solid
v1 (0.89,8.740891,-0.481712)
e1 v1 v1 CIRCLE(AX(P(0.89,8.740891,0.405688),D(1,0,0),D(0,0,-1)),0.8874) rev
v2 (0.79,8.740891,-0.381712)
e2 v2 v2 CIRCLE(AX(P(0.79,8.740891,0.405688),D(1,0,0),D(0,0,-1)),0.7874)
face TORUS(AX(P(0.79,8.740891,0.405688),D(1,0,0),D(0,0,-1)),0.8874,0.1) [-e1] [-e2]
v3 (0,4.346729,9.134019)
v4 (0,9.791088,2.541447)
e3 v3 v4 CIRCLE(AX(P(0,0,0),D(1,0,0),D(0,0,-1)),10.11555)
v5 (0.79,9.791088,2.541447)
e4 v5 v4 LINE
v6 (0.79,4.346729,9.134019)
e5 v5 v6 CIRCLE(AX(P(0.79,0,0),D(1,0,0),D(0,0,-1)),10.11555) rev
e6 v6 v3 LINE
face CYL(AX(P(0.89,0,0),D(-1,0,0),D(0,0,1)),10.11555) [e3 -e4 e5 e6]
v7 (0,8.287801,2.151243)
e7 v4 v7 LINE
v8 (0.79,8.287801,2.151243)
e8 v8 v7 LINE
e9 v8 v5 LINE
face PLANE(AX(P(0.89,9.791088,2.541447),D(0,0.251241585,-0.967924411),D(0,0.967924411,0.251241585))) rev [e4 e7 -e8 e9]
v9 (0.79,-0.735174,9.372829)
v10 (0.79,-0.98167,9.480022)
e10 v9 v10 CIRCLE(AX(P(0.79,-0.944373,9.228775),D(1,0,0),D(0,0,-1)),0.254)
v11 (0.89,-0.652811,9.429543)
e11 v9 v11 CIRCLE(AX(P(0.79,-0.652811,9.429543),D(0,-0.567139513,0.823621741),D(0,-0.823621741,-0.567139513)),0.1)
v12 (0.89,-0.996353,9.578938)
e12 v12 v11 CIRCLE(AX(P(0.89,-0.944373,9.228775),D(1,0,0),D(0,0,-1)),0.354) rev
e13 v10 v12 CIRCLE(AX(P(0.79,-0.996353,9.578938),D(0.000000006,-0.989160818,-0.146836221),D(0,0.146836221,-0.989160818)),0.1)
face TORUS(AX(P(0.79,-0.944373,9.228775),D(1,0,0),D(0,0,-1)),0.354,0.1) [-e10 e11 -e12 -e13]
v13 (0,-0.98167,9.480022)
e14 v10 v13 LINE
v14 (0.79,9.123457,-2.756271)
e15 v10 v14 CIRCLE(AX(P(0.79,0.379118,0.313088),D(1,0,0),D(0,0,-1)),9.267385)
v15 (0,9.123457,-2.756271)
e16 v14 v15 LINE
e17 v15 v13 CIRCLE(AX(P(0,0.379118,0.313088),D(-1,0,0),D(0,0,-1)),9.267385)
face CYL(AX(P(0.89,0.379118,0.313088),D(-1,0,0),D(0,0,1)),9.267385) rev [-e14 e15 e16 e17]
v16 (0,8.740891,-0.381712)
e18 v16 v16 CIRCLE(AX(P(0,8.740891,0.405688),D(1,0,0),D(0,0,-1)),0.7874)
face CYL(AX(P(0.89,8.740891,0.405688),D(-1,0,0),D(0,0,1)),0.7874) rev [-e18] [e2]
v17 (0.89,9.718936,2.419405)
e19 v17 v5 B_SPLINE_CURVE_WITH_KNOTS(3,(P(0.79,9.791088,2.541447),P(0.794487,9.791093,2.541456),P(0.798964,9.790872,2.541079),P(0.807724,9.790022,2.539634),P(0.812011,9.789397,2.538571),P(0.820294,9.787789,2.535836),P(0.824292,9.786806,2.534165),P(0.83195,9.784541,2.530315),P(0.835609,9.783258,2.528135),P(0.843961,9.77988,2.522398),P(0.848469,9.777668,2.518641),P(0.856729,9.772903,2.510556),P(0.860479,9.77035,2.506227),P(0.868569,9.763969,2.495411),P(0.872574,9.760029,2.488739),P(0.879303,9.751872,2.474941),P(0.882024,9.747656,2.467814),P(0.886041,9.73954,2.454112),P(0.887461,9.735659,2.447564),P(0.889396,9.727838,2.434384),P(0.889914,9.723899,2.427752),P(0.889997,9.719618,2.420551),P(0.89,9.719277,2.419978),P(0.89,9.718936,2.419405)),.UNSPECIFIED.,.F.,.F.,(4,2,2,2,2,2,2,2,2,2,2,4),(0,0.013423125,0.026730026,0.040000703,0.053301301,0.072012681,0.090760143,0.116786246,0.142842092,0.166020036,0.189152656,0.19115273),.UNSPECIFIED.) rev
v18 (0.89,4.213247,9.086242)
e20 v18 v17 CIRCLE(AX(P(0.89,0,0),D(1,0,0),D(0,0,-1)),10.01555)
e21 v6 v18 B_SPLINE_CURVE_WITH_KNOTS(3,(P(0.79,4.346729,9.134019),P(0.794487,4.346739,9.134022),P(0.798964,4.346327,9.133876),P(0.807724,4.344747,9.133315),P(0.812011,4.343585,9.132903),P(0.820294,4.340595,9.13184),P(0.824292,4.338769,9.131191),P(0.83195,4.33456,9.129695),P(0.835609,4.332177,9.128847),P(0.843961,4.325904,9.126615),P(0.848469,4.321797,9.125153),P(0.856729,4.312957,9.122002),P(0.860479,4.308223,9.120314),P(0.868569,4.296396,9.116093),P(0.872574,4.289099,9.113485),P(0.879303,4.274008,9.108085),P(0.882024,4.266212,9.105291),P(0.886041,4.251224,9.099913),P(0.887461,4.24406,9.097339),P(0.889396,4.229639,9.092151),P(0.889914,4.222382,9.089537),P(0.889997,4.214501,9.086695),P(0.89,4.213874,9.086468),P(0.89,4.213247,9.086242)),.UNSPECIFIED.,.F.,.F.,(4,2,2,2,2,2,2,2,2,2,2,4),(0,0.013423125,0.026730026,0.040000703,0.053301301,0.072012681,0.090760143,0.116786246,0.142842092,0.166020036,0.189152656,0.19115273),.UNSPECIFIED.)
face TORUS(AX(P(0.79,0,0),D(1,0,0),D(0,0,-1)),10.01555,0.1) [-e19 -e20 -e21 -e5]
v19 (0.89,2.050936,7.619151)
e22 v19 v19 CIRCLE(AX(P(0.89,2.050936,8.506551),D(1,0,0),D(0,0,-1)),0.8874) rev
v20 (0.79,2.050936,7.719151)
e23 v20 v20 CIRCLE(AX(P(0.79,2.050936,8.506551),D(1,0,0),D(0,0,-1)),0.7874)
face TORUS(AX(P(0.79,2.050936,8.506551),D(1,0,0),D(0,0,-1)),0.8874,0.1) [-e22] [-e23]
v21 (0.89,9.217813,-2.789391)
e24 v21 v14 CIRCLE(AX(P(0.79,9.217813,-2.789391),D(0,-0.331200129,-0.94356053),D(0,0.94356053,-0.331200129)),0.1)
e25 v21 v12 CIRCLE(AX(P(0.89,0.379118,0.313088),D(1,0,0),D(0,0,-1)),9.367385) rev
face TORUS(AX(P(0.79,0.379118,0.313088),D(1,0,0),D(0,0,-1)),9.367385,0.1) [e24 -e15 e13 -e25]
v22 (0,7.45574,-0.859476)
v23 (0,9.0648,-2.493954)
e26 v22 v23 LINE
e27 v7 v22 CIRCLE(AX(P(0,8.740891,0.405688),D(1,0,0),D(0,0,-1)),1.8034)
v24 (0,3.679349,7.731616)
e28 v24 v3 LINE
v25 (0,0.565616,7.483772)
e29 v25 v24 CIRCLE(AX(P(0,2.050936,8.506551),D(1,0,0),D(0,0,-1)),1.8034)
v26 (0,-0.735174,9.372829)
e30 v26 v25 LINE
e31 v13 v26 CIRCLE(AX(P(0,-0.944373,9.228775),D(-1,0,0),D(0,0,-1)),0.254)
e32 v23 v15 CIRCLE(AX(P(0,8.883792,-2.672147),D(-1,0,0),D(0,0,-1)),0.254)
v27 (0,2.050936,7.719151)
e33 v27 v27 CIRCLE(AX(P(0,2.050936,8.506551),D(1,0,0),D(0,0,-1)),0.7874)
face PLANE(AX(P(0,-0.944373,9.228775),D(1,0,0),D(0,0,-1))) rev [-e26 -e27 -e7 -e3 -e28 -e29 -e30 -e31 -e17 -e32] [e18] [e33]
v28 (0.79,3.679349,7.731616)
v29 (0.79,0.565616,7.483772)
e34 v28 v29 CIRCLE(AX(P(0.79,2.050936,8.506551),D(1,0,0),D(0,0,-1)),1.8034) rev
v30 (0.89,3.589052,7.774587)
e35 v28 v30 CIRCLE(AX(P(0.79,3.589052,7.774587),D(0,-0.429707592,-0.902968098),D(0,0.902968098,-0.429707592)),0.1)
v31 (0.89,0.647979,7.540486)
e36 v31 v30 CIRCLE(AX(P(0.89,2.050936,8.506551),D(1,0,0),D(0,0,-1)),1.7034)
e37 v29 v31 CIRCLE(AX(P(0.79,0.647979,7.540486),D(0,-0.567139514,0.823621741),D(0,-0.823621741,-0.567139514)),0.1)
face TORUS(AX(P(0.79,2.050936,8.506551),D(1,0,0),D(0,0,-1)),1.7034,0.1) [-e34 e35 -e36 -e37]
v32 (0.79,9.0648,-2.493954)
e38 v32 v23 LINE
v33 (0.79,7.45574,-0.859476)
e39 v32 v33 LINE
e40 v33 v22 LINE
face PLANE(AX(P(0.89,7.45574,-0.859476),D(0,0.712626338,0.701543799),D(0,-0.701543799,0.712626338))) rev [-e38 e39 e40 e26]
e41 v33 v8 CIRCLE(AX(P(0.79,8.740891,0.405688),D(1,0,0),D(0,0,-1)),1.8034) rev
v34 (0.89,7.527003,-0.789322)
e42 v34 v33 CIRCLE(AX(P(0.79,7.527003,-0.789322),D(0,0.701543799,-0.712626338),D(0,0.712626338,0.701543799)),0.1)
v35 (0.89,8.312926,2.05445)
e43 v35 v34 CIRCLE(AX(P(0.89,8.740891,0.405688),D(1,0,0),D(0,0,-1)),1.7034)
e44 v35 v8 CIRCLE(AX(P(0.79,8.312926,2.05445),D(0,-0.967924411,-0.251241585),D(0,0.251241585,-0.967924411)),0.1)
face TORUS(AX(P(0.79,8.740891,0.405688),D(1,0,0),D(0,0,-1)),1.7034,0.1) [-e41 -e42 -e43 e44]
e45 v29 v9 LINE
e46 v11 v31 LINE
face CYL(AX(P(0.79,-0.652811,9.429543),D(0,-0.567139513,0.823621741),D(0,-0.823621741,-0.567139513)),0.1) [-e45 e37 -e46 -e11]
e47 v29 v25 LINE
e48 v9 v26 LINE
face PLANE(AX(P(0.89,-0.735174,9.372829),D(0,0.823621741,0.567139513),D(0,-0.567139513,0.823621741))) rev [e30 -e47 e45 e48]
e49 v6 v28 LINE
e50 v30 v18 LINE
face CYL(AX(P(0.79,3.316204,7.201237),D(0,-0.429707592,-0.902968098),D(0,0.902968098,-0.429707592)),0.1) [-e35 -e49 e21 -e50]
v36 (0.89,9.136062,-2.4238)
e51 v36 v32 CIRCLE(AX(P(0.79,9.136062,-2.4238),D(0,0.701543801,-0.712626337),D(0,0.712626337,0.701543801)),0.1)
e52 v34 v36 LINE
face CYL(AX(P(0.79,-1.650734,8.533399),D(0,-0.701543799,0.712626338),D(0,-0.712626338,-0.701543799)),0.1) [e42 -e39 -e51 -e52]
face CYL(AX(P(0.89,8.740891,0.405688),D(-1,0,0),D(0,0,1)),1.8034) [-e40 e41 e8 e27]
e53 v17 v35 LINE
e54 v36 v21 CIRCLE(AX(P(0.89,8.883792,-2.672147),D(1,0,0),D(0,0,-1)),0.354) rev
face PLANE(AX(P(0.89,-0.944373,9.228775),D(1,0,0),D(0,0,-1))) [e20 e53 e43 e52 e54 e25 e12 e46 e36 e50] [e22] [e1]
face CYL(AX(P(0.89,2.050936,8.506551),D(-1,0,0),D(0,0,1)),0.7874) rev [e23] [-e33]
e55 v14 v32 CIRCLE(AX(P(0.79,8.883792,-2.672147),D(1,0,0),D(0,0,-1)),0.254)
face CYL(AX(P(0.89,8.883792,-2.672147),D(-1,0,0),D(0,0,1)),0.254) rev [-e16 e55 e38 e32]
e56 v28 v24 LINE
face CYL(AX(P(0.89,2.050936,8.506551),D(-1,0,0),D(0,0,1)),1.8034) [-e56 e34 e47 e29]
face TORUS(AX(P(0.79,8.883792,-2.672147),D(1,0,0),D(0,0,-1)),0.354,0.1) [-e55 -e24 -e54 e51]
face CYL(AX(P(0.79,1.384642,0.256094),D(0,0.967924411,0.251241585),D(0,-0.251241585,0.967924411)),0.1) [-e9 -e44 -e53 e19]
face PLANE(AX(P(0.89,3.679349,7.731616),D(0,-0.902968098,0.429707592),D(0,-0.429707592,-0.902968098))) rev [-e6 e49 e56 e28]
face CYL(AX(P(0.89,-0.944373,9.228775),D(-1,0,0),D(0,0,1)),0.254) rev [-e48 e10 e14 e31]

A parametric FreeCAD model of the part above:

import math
import FreeCAD as App
import Part
import Sketcher
Q = App.Units.Quantity


def edges_at(feature, points):
    """Names of the edges that pass closest to the given points."""
    edges = feature.Shape.Edges
    near = lambda p: min(range(len(edges)), key=lambda i: edges[i].distToShape(Part.Vertex(*p))[0])
    return sorted({f"Edge{near(p) + 1}" for p in points})

doc = App.newDocument("Part")
body = doc.addObject("PartDesign::Body", "Body")

# Sketch on YZ plane
sketch1 = doc.addObject("Sketcher::SketchObject", "Sketch")
body.addObject(sketch1)
sketch1.AttachmentSupport = (doc.YZ_Plane, [""])
sketch1.MapMode = "FlatFace"
sketch1.addGeometry(Part.LineSegment(App.Vector(-0.74, 9.37, 0), App.Vector(0.57, 7.48, 0)), False)
sketch1.addGeometry(Part.ArcOfCircle(Part.Circle(App.Vector(2.05, 8.51, 0), App.Vector(0, 0, 1), 1.8), math.radians(-145), math.radians(-25)), False)
sketch1.addGeometry(Part.LineSegment(App.Vector(3.68, 7.73, 0), App.Vector(4.35, 9.13, 0)), False)
sketch1.addGeometry(Part.ArcOfCircle(Part.Circle(App.Vector(0, 0, 0), App.Vector(0, 0, 1), 10.12), math.radians(65), math.radians(375)), False)
sketch1.addGeometry(Part.LineSegment(App.Vector(9.79, 2.54, 0), App.Vector(8.29, 2.15, 0)), False)
sketch1.addGeometry(Part.ArcOfCircle(Part.Circle(App.Vector(8.74, 0.41, 0), App.Vector(0, 0, 1), 1.8), math.radians(105), math.radians(225)), False)
sketch1.addGeometry(Part.LineSegment(App.Vector(7.46, -0.86, 0), App.Vector(9.06, -2.49, 0)), False)
sketch1.addGeometry(Part.ArcOfCircle(Part.Circle(App.Vector(8.88, -2.67, 0), App.Vector(0, 0, 1), 0.25), math.radians(-19), math.radians(45)), False)
sketch1.addGeometry(Part.ArcOfCircle(Part.Circle(App.Vector(0.38, 0.31, 0), App.Vector(0, 0, 1), 9.27), math.radians(98), math.radians(341)), False)
sketch1.addGeometry(Part.ArcOfCircle(Part.Circle(App.Vector(-0.94, 9.23, 0), App.Vector(0, 0, 1), 0.25), math.radians(35), math.radians(98)), False)
sketch1.addGeometry(Part.Circle(App.Vector(2.05, 8.51, 0), App.Vector(0, 0, 1), 0.79), False)
sketch1.addGeometry(Part.Circle(App.Vector(8.74, 0.41, 0), App.Vector(0, 0, 1), 0.79), False)
sketch1.addConstraint(Sketcher.Constraint("Tangent", 0, 2, 1, 1))
sketch1.addConstraint(Sketcher.Constraint("Tangent", 1, 2, 2, 1))
sketch1.addConstraint(Sketcher.Constraint("Coincident", 2, 2, 3, 1))
sketch1.addConstraint(Sketcher.Constraint("Coincident", 3, 2, 4, 1))
sketch1.addConstraint(Sketcher.Constraint("Tangent", 4, 2, 5, 1))
sketch1.addConstraint(Sketcher.Constraint("Tangent", 5, 2, 6, 1))
sketch1.addConstraint(Sketcher.Constraint("Tangent", 6, 2, 7, 2))
sketch1.addConstraint(Sketcher.Constraint("Tangent", 7, 1, 8, 2))
sketch1.addConstraint(Sketcher.Constraint("Tangent", 8, 1, 9, 2))
sketch1.addConstraint(Sketcher.Constraint("Tangent", 9, 1, 0, 1))
sketch1.addConstraint(Sketcher.Constraint("Coincident", 3, 3, -1, 1))
sketch1.addConstraint(Sketcher.Constraint("Coincident", 10, 3, 1, 3))
sketch1.addConstraint(Sketcher.Constraint("Coincident", 11, 3, 5, 3))
sketch1.addConstraint(Sketcher.Constraint("Equal", 1, 5))
sketch1.addConstraint(Sketcher.Constraint("Equal", 7, 9))
sketch1.addConstraint(Sketcher.Constraint("Equal", 10, 11))
sketch1.addConstraint(Sketcher.Constraint("Equal", 2, 4))
sketch1.addConstraint(Sketcher.Constraint("Equal", 0, 6))
sketch1.addConstraint(Sketcher.Constraint("Radius", 7, Q("0.01 in")))
sketch1.addConstraint(Sketcher.Constraint("Diameter", 10, Q("0.062 in")))
sketch1.addConstraint(Sketcher.Constraint("Radius", 1, Q("0.071 in")))
sketch1.addConstraint(Sketcher.Constraint("Radius", 3, 10.11555))
sketch1.addConstraint(Sketcher.Constraint("Radius", 8, 9.267385))
sketch1.addConstraint(Sketcher.Constraint("DistanceX", -1, 1, 4, 2, 8.287801))
sketch1.addConstraint(Sketcher.Constraint("DistanceX", -1, 1, 6, 2, 9.0648))
sketch1.addConstraint(Sketcher.Constraint("DistanceX", 5, 3, 7, 3, 0.142902))
sketch1.addConstraint(Sketcher.Constraint("DistanceY", 8, 3, 5, 3, 0.0926))
sketch1.addConstraint(Sketcher.Constraint("DistanceX", 8, 3, 0, 2, 0.186499))
sketch1.addConstraint(Sketcher.Constraint("DistanceX", 9, 3, 9, 1, 0.2092))
sketch1.addConstraint(Sketcher.Constraint("DistanceY", -1, 1, 1, 3, 8.506551))
sketch1.addConstraint(Sketcher.Constraint("DistanceX", -1, 1, 5, 3, 8.740891))
pad1 = doc.addObject("PartDesign::Pad", "Pad")
body.addObject(pad1)
pad1.Profile = sketch1
pad1.Length = 0.89
doc.recompute()

fillet = doc.addObject("PartDesign::Fillet", "Fillet")
body.addObject(fillet)
fillet.Base = (pad1, edges_at(pad1, [
    (0.89, 2.194, 6.709),
    (0.89, 4.013, 8.433),
    (0.89, -7.8, -6.441),
    (0.89, 9.039, 2.346),
    (0.89, 2.051, 9.294),
    (0.89, 7.003, 0.886),
    (0.89, 8.741, 1.193),
    (0.89, 8.26, -1.677),
    (0.89, 9.132, -2.617),
    (0.89, -6.767, -5.588),
    (0.89, -0.843, 9.462),
    (0.89, -0.085, 8.428),
]))
fillet.Radius = 0.1

doc.recompute()
